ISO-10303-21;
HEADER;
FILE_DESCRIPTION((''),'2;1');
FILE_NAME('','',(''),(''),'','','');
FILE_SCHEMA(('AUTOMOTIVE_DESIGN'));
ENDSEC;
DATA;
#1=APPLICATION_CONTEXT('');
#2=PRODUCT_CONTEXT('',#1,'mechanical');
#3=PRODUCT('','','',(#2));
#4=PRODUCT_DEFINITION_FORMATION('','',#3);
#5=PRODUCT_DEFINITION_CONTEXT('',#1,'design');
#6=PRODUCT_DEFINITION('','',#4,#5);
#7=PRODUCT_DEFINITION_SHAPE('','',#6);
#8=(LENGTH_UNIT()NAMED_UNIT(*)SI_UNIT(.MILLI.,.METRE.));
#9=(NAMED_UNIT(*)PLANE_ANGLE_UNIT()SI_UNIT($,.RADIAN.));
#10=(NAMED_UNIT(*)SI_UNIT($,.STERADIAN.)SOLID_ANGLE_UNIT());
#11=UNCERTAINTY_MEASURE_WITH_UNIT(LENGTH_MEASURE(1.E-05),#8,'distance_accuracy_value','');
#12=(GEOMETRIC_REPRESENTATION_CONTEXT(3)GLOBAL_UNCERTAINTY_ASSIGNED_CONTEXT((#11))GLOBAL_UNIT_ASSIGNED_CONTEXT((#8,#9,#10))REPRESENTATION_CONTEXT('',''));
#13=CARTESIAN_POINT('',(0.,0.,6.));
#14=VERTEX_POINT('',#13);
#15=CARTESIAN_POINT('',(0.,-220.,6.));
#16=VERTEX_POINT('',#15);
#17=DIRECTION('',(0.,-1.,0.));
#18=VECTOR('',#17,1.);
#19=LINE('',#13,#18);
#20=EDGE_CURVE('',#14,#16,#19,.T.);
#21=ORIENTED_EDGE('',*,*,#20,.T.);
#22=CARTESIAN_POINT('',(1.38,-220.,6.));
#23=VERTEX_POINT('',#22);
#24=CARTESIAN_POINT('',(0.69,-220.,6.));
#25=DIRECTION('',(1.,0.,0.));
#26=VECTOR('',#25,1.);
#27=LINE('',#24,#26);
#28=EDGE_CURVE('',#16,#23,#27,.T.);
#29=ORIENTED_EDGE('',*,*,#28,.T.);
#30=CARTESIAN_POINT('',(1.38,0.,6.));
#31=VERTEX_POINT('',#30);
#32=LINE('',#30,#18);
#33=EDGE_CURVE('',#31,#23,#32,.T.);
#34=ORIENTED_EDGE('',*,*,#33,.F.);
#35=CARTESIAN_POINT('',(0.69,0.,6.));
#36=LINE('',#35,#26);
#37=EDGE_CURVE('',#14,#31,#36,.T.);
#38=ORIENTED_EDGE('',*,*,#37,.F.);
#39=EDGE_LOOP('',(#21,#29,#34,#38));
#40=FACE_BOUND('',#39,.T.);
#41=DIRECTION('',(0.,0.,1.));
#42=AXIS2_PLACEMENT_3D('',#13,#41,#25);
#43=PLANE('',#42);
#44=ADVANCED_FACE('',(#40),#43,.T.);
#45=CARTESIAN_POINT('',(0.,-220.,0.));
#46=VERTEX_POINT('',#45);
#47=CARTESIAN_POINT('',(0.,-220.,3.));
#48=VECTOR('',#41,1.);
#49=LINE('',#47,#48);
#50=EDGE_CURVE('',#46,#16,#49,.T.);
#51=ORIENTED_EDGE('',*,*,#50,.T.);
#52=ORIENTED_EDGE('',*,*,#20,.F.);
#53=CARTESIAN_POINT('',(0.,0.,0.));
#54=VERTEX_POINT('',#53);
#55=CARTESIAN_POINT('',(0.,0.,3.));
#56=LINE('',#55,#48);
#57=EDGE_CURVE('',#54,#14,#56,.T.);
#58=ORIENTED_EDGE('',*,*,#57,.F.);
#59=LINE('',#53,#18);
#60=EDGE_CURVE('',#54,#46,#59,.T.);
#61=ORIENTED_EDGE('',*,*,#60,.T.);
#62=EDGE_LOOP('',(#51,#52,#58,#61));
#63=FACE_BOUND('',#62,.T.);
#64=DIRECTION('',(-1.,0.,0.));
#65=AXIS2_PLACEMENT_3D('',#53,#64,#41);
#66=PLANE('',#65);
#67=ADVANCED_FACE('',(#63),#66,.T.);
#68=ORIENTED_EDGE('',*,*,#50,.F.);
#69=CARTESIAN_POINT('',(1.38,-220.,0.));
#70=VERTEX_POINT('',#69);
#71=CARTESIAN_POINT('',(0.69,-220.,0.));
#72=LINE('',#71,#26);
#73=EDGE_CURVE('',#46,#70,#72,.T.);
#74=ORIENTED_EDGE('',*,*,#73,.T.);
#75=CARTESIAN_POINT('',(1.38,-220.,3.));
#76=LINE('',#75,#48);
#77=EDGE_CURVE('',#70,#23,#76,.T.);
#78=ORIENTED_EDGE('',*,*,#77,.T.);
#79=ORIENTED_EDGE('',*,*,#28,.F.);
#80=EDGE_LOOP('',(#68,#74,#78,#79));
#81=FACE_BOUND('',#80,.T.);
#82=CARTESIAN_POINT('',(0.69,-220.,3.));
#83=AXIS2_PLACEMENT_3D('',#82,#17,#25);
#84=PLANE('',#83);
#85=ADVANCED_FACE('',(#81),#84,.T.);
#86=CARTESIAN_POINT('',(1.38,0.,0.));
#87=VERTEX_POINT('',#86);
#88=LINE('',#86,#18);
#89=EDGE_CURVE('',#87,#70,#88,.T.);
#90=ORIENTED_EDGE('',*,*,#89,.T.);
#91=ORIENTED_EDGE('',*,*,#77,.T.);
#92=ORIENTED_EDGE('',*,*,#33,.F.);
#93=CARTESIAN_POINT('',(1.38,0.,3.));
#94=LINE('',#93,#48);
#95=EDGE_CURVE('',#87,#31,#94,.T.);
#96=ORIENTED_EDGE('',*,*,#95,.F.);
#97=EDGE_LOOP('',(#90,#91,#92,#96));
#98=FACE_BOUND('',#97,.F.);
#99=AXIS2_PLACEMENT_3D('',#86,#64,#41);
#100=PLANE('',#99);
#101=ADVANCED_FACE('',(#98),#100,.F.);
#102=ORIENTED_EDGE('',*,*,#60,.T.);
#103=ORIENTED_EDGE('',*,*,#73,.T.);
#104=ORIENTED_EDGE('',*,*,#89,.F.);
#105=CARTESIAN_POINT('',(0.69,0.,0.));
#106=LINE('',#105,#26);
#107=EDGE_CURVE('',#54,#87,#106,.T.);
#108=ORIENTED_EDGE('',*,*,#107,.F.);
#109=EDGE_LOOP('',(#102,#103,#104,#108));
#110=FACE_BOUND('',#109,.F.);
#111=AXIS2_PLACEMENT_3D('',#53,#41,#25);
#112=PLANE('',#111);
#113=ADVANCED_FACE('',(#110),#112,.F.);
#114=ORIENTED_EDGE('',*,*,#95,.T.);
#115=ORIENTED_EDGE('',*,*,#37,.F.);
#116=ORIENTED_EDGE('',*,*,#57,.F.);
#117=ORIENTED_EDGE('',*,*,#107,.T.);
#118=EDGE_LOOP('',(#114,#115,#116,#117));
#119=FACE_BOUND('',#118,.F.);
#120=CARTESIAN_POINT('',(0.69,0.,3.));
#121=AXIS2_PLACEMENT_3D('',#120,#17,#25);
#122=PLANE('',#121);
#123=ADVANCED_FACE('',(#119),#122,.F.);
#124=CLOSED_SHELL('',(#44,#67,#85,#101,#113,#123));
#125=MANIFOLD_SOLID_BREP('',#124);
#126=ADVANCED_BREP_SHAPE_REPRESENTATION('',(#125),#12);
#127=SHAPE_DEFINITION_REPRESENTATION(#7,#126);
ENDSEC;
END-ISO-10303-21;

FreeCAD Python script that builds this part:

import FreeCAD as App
import Part
import Sketcher
from FreeCAD import Vector


def add_polygon(sketch, points):
    """Adds a closed chain of lines whose ends are joined by coincident constraints."""
    first, n = sketch.GeometryCount, len(points)
    for a, b in zip(points, points[1:] + points[:1]):
        sketch.addGeometry(Part.LineSegment(App.Vector(*a, 0), App.Vector(*b, 0)), False)
    for i in range(n):
        sketch.addConstraint(Sketcher.Constraint("Coincident", first + i, 2, first + (i + 1) % n, 1))

doc = App.newDocument("Part")
body = doc.addObject("PartDesign::Body", "Body")

# Sketch on XZ plane
sketch1 = body.newObject("Sketcher::SketchObject", "Sketch")
sketch1.AttachmentSupport = (doc.getObject("XZ_Plane"), [""])
sketch1.MapMode = "FlatFace"
add_polygon(sketch1, [(0, 6), (0, 0), (1.4, 0), (1.4, 6)])  # lines 0-3
sketch1.addConstraint(Sketcher.Constraint("Vertical", 0))
sketch1.addConstraint(Sketcher.Constraint("Horizontal", 1))
sketch1.addConstraint(Sketcher.Constraint("Vertical", 2))
sketch1.addConstraint(Sketcher.Constraint("Horizontal", 3))
sketch1.addConstraint(Sketcher.Constraint("Coincident", 0, 2, -1, 1))
sketch1.addConstraint(Sketcher.Constraint("DistanceY", 0, 2, 0, 1, 6.0))
sketch1.addConstraint(Sketcher.Constraint("DistanceX", 1, 1, 1, 2, 1.38))
pad1 = body.newObject("PartDesign::Pad", "Pad")
pad1.Profile = sketch1
pad1.Length = 220

doc.recompute()
